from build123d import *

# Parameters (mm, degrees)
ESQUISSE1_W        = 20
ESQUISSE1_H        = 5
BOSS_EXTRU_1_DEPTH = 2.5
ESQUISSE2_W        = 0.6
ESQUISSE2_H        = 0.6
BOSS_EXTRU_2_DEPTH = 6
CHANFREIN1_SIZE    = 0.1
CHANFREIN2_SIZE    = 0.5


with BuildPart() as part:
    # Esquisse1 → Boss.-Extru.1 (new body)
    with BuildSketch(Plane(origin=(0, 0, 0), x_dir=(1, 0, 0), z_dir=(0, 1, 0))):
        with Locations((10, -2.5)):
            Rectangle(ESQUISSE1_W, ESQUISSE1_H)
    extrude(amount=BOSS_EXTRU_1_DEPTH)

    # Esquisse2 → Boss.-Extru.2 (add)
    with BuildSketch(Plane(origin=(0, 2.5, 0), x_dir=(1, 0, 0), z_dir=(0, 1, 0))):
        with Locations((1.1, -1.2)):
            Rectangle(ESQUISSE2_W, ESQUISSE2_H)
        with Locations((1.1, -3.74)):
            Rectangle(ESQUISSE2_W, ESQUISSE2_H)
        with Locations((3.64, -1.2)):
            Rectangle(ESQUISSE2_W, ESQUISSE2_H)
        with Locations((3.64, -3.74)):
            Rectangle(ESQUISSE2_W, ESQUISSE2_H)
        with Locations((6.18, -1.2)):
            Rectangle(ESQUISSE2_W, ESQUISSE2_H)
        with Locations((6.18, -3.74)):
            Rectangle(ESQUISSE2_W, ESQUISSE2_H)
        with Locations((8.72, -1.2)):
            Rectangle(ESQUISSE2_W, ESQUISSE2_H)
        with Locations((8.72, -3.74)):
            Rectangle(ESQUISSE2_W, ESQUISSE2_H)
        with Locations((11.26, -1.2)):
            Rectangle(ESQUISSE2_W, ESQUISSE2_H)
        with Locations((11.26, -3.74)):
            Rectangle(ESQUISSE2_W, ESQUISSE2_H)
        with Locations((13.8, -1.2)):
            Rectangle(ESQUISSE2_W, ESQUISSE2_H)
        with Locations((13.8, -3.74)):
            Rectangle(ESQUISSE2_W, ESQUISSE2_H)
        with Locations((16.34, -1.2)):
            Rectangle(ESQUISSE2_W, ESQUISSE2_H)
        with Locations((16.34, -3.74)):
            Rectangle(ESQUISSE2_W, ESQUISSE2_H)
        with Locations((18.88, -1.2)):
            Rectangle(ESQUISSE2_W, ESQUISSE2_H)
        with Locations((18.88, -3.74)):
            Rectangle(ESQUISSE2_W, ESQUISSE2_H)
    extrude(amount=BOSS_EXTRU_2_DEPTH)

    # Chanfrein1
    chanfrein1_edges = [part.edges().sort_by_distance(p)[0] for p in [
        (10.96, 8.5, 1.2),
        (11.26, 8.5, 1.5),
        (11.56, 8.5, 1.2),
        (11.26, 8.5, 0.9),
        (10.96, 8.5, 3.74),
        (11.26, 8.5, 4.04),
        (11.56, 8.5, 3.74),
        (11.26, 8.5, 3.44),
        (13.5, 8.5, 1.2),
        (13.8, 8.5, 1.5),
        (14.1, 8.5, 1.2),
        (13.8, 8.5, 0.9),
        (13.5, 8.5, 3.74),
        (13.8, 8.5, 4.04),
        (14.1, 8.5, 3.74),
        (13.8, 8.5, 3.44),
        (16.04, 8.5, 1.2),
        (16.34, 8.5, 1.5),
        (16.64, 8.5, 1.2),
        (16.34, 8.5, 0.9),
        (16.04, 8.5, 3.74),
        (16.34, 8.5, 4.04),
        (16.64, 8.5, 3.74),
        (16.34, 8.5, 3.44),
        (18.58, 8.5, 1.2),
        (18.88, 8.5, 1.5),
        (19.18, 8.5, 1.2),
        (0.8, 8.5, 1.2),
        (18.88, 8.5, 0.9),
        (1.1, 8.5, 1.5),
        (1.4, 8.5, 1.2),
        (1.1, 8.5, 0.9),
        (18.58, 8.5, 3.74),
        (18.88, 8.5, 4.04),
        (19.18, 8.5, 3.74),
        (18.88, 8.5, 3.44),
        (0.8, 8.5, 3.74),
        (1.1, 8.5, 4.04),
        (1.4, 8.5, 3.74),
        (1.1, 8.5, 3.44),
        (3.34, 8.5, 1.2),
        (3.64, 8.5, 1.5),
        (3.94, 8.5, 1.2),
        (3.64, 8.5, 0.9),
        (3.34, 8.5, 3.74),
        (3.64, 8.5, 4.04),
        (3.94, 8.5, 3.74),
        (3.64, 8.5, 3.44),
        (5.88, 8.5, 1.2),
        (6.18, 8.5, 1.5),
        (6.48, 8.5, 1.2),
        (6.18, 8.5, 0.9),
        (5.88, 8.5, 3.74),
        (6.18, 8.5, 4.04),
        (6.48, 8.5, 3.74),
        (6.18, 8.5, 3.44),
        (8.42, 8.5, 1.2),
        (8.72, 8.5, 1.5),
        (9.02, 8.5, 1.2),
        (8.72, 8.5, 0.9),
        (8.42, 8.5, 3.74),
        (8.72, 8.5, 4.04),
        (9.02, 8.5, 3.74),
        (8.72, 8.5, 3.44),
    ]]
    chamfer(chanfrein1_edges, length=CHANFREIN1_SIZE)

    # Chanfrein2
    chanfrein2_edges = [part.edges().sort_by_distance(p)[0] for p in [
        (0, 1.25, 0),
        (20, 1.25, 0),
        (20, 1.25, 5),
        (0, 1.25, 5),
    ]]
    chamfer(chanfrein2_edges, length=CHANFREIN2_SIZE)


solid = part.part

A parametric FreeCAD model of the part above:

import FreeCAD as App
import Part
import Sketcher
Q = App.Units.Quantity


def edges_at(feature, points):
    """Names of the edges that pass closest to the given points."""
    edges = feature.Shape.Edges
    near = lambda p: min(range(len(edges)), key=lambda i: edges[i].distToShape(Part.Vertex(*p))[0])
    return sorted({f"Edge{near(p) + 1}" for p in points})

doc = App.newDocument("Part")
body = doc.addObject("PartDesign::Body", "Body")

# Sketch on XZ plane
sketch1 = doc.addObject("Sketcher::SketchObject", "Sketch")
body.addObject(sketch1)
sketch1.AttachmentSupport = (doc.XZ_Plane, [""])
sketch1.MapMode = "FlatFace"
sketch1.addGeometry(Part.LineSegment(App.Vector(0, 0, 0), App.Vector(0, 5, 0)), False)
sketch1.addGeometry(Part.LineSegment(App.Vector(0, 5, 0), App.Vector(20, 5, 0)), False)
sketch1.addGeometry(Part.LineSegment(App.Vector(20, 5, 0), App.Vector(20, 0, 0)), False)
sketch1.addGeometry(Part.LineSegment(App.Vector(20, 0, 0), App.Vector(0, 0, 0)), False)
sketch1.addConstraint(Sketcher.Constraint("Coincident", 0, 2, 1, 1))
sketch1.addConstraint(Sketcher.Constraint("Coincident", 1, 2, 2, 1))
sketch1.addConstraint(Sketcher.Constraint("Coincident", 2, 2, 3, 1))
sketch1.addConstraint(Sketcher.Constraint("Coincident", 3, 2, 0, 1))
sketch1.addConstraint(Sketcher.Constraint("Vertical", 0))
sketch1.addConstraint(Sketcher.Constraint("Horizontal", 1))
sketch1.addConstraint(Sketcher.Constraint("Vertical", 2))
sketch1.addConstraint(Sketcher.Constraint("Horizontal", 3))
sketch1.addConstraint(Sketcher.Constraint("Coincident", 3, 2, -1, 1))
sketch1.addConstraint(Sketcher.Constraint("DistanceX", 1, 1, 1, 2, Q("20 mm")))
sketch1.addConstraint(Sketcher.Constraint("DistanceY", 0, 1, 0, 2, Q("5 mm")))
pad1 = doc.addObject("PartDesign::Pad", "Pad")
body.addObject(pad1)
pad1.Profile = sketch1
pad1.Length = 2.5
pad1.Reversed = True

# Sketch on XZ plane
sketch2 = doc.addObject("Sketcher::SketchObject", "Sketch001")
body.addObject(sketch2)
sketch2.AttachmentSupport = (doc.XZ_Plane, [""])
sketch2.MapMode = "FlatFace"
sketch2.AttachmentOffset = App.Placement(App.Vector(0, 0, -2.5), App.Rotation())
sketch2.addGeometry(Part.LineSegment(App.Vector(0.8, 0.9, 0), App.Vector(0.8, 1.5, 0)), False)
sketch2.addGeometry(Part.LineSegment(App.Vector(0.8, 1.5, 0), App.Vector(1.4, 1.5, 0)), False)
sketch2.addGeometry(Part.LineSegment(App.Vector(1.4, 1.5, 0), App.Vector(1.4, 0.9, 0)), False)
sketch2.addGeometry(Part.LineSegment(App.Vector(1.4, 0.9, 0), App.Vector(0.8, 0.9, 0)), False)
sketch2.addGeometry(Part.LineSegment(App.Vector(0.8, 3.4, 0), App.Vector(0.8, 4, 0)), False)
sketch2.addGeometry(Part.LineSegment(App.Vector(0.8, 4, 0), App.Vector(1.4, 4, 0)), False)
sketch2.addGeometry(Part.LineSegment(App.Vector(1.4, 4, 0), App.Vector(1.4, 3.4, 0)), False)
sketch2.addGeometry(Part.LineSegment(App.Vector(1.4, 3.4, 0), App.Vector(0.8, 3.4, 0)), False)
sketch2.addGeometry(Part.LineSegment(App.Vector(3.3, 0.9, 0), App.Vector(3.3, 1.5, 0)), False)
sketch2.addGeometry(Part.LineSegment(App.Vector(3.3, 1.5, 0), App.Vector(3.9, 1.5, 0)), False)
sketch2.addGeometry(Part.LineSegment(App.Vector(3.9, 1.5, 0), App.Vector(3.9, 0.9, 0)), False)
sketch2.addGeometry(Part.LineSegment(App.Vector(3.9, 0.9, 0), App.Vector(3.3, 0.9, 0)), False)
sketch2.addGeometry(Part.LineSegment(App.Vector(3.3, 3.4, 0), App.Vector(3.3, 4, 0)), False)
sketch2.addGeometry(Part.LineSegment(App.Vector(3.3, 4, 0), App.Vector(3.9, 4, 0)), False)
sketch2.addGeometry(Part.LineSegment(App.Vector(3.9, 4, 0), App.Vector(3.9, 3.4, 0)), False)
sketch2.addGeometry(Part.LineSegment(App.Vector(3.9, 3.4, 0), App.Vector(3.3, 3.4, 0)), False)
sketch2.addGeometry(Part.LineSegment(App.Vector(5.9, 0.9, 0), App.Vector(5.9, 1.5, 0)), False)
sketch2.addGeometry(Part.LineSegment(App.Vector(5.9, 1.5, 0), App.Vector(6.5, 1.5, 0)), False)
sketch2.addGeometry(Part.LineSegment(App.Vector(6.5, 1.5, 0), App.Vector(6.5, 0.9, 0)), False)
sketch2.addGeometry(Part.LineSegment(App.Vector(6.5, 0.9, 0), App.Vector(5.9, 0.9, 0)), False)
sketch2.addGeometry(Part.LineSegment(App.Vector(5.9, 3.4, 0), App.Vector(5.9, 4, 0)), False)
sketch2.addGeometry(Part.LineSegment(App.Vector(5.9, 4, 0), App.Vector(6.5, 4, 0)), False)
sketch2.addGeometry(Part.LineSegment(App.Vector(6.5, 4, 0), App.Vector(6.5, 3.4, 0)), False)
sketch2.addGeometry(Part.LineSegment(App.Vector(6.5, 3.4, 0), App.Vector(5.9, 3.4, 0)), False)
sketch2.addGeometry(Part.LineSegment(App.Vector(8.4, 0.9, 0), App.Vector(8.4, 1.5, 0)), False)
sketch2.addGeometry(Part.LineSegment(App.Vector(8.4, 1.5, 0), App.Vector(9, 1.5, 0)), False)
sketch2.addGeometry(Part.LineSegment(App.Vector(9, 1.5, 0), App.Vector(9, 0.9, 0)), False)
sketch2.addGeometry(Part.LineSegment(App.Vector(9, 0.9, 0), App.Vector(8.4, 0.9, 0)), False)
sketch2.addGeometry(Part.LineSegment(App.Vector(8.4, 3.4, 0), App.Vector(8.4, 4, 0)), False)
sketch2.addGeometry(Part.LineSegment(App.Vector(8.4, 4, 0), App.Vector(9, 4, 0)), False)
sketch2.addGeometry(Part.LineSegment(App.Vector(9, 4, 0), App.Vector(9, 3.4, 0)), False)
sketch2.addGeometry(Part.LineSegment(App.Vector(9, 3.4, 0), App.Vector(8.4, 3.4, 0)), False)
sketch2.addGeometry(Part.LineSegment(App.Vector(11, 0.9, 0), App.Vector(11, 1.5, 0)), False)
sketch2.addGeometry(Part.LineSegment(App.Vector(11, 1.5, 0), App.Vector(11.6, 1.5, 0)), False)
sketch2.addGeometry(Part.LineSegment(App.Vector(11.6, 1.5, 0), App.Vector(11.6, 0.9, 0)), False)
sketch2.addGeometry(Part.LineSegment(App.Vector(11.6, 0.9, 0), App.Vector(11, 0.9, 0)), False)
sketch2.addGeometry(Part.LineSegment(App.Vector(11, 3.4, 0), App.Vector(11, 4, 0)), False)
sketch2.addGeometry(Part.LineSegment(App.Vector(11, 4, 0), App.Vector(11.6, 4, 0)), False)
sketch2.addGeometry(Part.LineSegment(App.Vector(11.6, 4, 0), App.Vector(11.6, 3.4, 0)), False)
sketch2.addGeometry(Part.LineSegment(App.Vector(11.6, 3.4, 0), App.Vector(11, 3.4, 0)), False)
sketch2.addGeometry(Part.LineSegment(App.Vector(13.5, 0.9, 0), App.Vector(13.5, 1.5, 0)), False)
sketch2.addGeometry(Part.LineSegment(App.Vector(13.5, 1.5, 0), App.Vector(14.1, 1.5, 0)), False)
sketch2.addGeometry(Part.LineSegment(App.Vector(14.1, 1.5, 0), App.Vector(14.1, 0.9, 0)), False)
sketch2.addGeometry(Part.LineSegment(App.Vector(14.1, 0.9, 0), App.Vector(13.5, 0.9, 0)), False)
sketch2.addGeometry(Part.LineSegment(App.Vector(13.5, 3.4, 0), App.Vector(13.5, 4, 0)), False)
sketch2.addGeometry(Part.LineSegment(App.Vector(13.5, 4, 0), App.Vector(14.1, 4, 0)), False)
sketch2.addGeometry(Part.LineSegment(App.Vector(14.1, 4, 0), App.Vector(14.1, 3.4, 0)), False)
sketch2.addGeometry(Part.LineSegment(App.Vector(14.1, 3.4, 0), App.Vector(13.5, 3.4, 0)), False)
sketch2.addGeometry(Part.LineSegment(App.Vector(16, 0.9, 0), App.Vector(16, 1.5, 0)), False)
sketch2.addGeometry(Part.LineSegment(App.Vector(16, 1.5, 0), App.Vector(16.6, 1.5, 0)), False)
sketch2.addGeometry(Part.LineSegment(App.Vector(16.6, 1.5, 0), App.Vector(16.6, 0.9, 0)), False)
sketch2.addGeometry(Part.LineSegment(App.Vector(16.6, 0.9, 0), App.Vector(16, 0.9, 0)), False)
sketch2.addGeometry(Part.LineSegment(App.Vector(16, 3.4, 0), App.Vector(16, 4, 0)), False)
sketch2.addGeometry(Part.LineSegment(App.Vector(16, 4, 0), App.Vector(16.6, 4, 0)), False)
sketch2.addGeometry(Part.LineSegment(App.Vector(16.6, 4, 0), App.Vector(16.6, 3.4, 0)), False)
sketch2.addGeometry(Part.LineSegment(App.Vector(16.6, 3.4, 0), App.Vector(16, 3.4, 0)), False)
sketch2.addGeometry(Part.LineSegment(App.Vector(18.6, 0.9, 0), App.Vector(18.6, 1.5, 0)), False)
sketch2.addGeometry(Part.LineSegment(App.Vector(18.6, 1.5, 0), App.Vector(19.2, 1.5, 0)), False)
sketch2.addGeometry(Part.LineSegment(App.Vector(19.2, 1.5, 0), App.Vector(19.2, 0.9, 0)), False)
sketch2.addGeometry(Part.LineSegment(App.Vector(19.2, 0.9, 0), App.Vector(18.6, 0.9, 0)), False)
sketch2.addGeometry(Part.LineSegment(App.Vector(18.6, 3.4, 0), App.Vector(18.6, 4, 0)), False)
sketch2.addGeometry(Part.LineSegment(App.Vector(18.6, 4, 0), App.Vector(19.2, 4, 0)), False)
sketch2.addGeometry(Part.LineSegment(App.Vector(19.2, 4, 0), App.Vector(19.2, 3.4, 0)), False)
sketch2.addGeometry(Part.LineSegment(App.Vector(19.2, 3.4, 0), App.Vector(18.6, 3.4, 0)), False)
sketch2.addConstraint(Sketcher.Constraint("Coincident", 0, 2, 1, 1))
sketch2.addConstraint(Sketcher.Constraint("Coincident", 1, 2, 2, 1))
sketch2.addConstraint(Sketcher.Constraint("Coincident", 2, 2, 3, 1))
sketch2.addConstraint(Sketcher.Constraint("Coincident", 3, 2, 0, 1))
sketch2.addConstraint(Sketcher.Constraint("Coincident", 4, 2, 5, 1))
sketch2.addConstraint(Sketcher.Constraint("Coincident", 5, 2, 6, 1))
sketch2.addConstraint(Sketcher.Constraint("Coincident", 6, 2, 7, 1))
sketch2.addConstraint(Sketcher.Constraint("Coincident", 7, 2, 4, 1))
sketch2.addConstraint(Sketcher.Constraint("Coincident", 8, 2, 9, 1))
sketch2.addConstraint(Sketcher.Constraint("Coincident", 9, 2, 10, 1))
sketch2.addConstraint(Sketcher.Constraint("Coincident", 10, 2, 11, 1))
sketch2.addConstraint(Sketcher.Constraint("Coincident", 11, 2, 8, 1))
sketch2.addConstraint(Sketcher.Constraint("Coincident", 12, 2, 13, 1))
sketch2.addConstraint(Sketcher.Constraint("Coincident", 13, 2, 14, 1))
sketch2.addConstraint(Sketcher.Constraint("Coincident", 14, 2, 15, 1))
sketch2.addConstraint(Sketcher.Constraint("Coincident", 15, 2, 12, 1))
sketch2.addConstraint(Sketcher.Constraint("Coincident", 16, 2, 17, 1))
sketch2.addConstraint(Sketcher.Constraint("Coincident", 17, 2, 18, 1))
sketch2.addConstraint(Sketcher.Constraint("Coincident", 18, 2, 19, 1))
sketch2.addConstraint(Sketcher.Constraint("Coincident", 19, 2, 16, 1))
sketch2.addConstraint(Sketcher.Constraint("Coincident", 20, 2, 21, 1))
sketch2.addConstraint(Sketcher.Constraint("Coincident", 21, 2, 22, 1))
sketch2.addConstraint(Sketcher.Constraint("Coincident", 22, 2, 23, 1))
sketch2.addConstraint(Sketcher.Constraint("Coincident", 23, 2, 20, 1))
sketch2.addConstraint(Sketcher.Constraint("Coincident", 24, 2, 25, 1))
sketch2.addConstraint(Sketcher.Constraint("Coincident", 25, 2, 26, 1))
sketch2.addConstraint(Sketcher.Constraint("Coincident", 26, 2, 27, 1))
sketch2.addConstraint(Sketcher.Constraint("Coincident", 27, 2, 24, 1))
sketch2.addConstraint(Sketcher.Constraint("Coincident", 28, 2, 29, 1))
sketch2.addConstraint(Sketcher.Constraint("Coincident", 29, 2, 30, 1))
sketch2.addConstraint(Sketcher.Constraint("Coincident", 30, 2, 31, 1))
sketch2.addConstraint(Sketcher.Constraint("Coincident", 31, 2, 28, 1))
sketch2.addConstraint(Sketcher.Constraint("Coincident", 32, 2, 33, 1))
sketch2.addConstraint(Sketcher.Constraint("Coincident", 33, 2, 34, 1))
sketch2.addConstraint(Sketcher.Constraint("Coincident", 34, 2, 35, 1))
sketch2.addConstraint(Sketcher.Constraint("Coincident", 35, 2, 32, 1))
sketch2.addConstraint(Sketcher.Constraint("Coincident", 36, 2, 37, 1))
sketch2.addConstraint(Sketcher.Constraint("Coincident", 37, 2, 38, 1))
sketch2.addConstraint(Sketcher.Constraint("Coincident", 38, 2, 39, 1))
sketch2.addConstraint(Sketcher.Constraint("Coincident", 39, 2, 36, 1))
sketch2.addConstraint(Sketcher.Constraint("Coincident", 40, 2, 41, 1))
sketch2.addConstraint(Sketcher.Constraint("Coincident", 41, 2, 42, 1))
sketch2.addConstraint(Sketcher.Constraint("Coincident", 42, 2, 43, 1))
sketch2.addConstraint(Sketcher.Constraint("Coincident", 43, 2, 40, 1))
sketch2.addConstraint(Sketcher.Constraint("Coincident", 44, 2, 45, 1))
sketch2.addConstraint(Sketcher.Constraint("Coincident", 45, 2, 46, 1))
sketch2.addConstraint(Sketcher.Constraint("Coincident", 46, 2, 47, 1))
sketch2.addConstraint(Sketcher.Constraint("Coincident", 47, 2, 44, 1))
sketch2.addConstraint(Sketcher.Constraint("Coincident", 48, 2, 49, 1))
sketch2.addConstraint(Sketcher.Constraint("Coincident", 49, 2, 50, 1))
sketch2.addConstraint(Sketcher.Constraint("Coincident", 50, 2, 51, 1))
sketch2.addConstraint(Sketcher.Constraint("Coincident", 51, 2, 48, 1))
sketch2.addConstraint(Sketcher.Constraint("Coincident", 52, 2, 53, 1))
sketch2.addConstraint(Sketcher.Constraint("Coincident", 53, 2, 54, 1))
sketch2.addConstraint(Sketcher.Constraint("Coincident", 54, 2, 55, 1))
sketch2.addConstraint(Sketcher.Constraint("Coincident", 55, 2, 52, 1))
sketch2.addConstraint(Sketcher.Constraint("Coincident", 56, 2, 57, 1))
sketch2.addConstraint(Sketcher.Constraint("Coincident", 57, 2, 58, 1))
sketch2.addConstraint(Sketcher.Constraint("Coincident", 58, 2, 59, 1))
sketch2.addConstraint(Sketcher.Constraint("Coincident", 59, 2, 56, 1))
sketch2.addConstraint(Sketcher.Constraint("Coincident", 60, 2, 61, 1))
sketch2.addConstraint(Sketcher.Constraint("Coincident", 61, 2, 62, 1))
sketch2.addConstraint(Sketcher.Constraint("Coincident", 62, 2, 63, 1))
sketch2.addConstraint(Sketcher.Constraint("Coincident", 63, 2, 60, 1))
sketch2.addConstraint(Sketcher.Constraint("Vertical", 0))
sketch2.addConstraint(Sketcher.Constraint("Horizontal", 1))
sketch2.addConstraint(Sketcher.Constraint("Vertical", 2))
sketch2.addConstraint(Sketcher.Constraint("Horizontal", 3))
sketch2.addConstraint(Sketcher.Constraint("Vertical", 4))
sketch2.addConstraint(Sketcher.Constraint("Horizontal", 5))
sketch2.addConstraint(Sketcher.Constraint("Vertical", 6))
sketch2.addConstraint(Sketcher.Constraint("Horizontal", 7))
sketch2.addConstraint(Sketcher.Constraint("Vertical", 8))
sketch2.addConstraint(Sketcher.Constraint("Horizontal", 9))
sketch2.addConstraint(Sketcher.Constraint("Vertical", 10))
sketch2.addConstraint(Sketcher.Constraint("Horizontal", 11))
sketch2.addConstraint(Sketcher.Constraint("Vertical", 12))
sketch2.addConstraint(Sketcher.Constraint("Horizontal", 13))
sketch2.addConstraint(Sketcher.Constraint("Vertical", 14))
sketch2.addConstraint(Sketcher.Constraint("Horizontal", 15))
sketch2.addConstraint(Sketcher.Constraint("Vertical", 16))
sketch2.addConstraint(Sketcher.Constraint("Horizontal", 17))
sketch2.addConstraint(Sketcher.Constraint("Vertical", 18))
sketch2.addConstraint(Sketcher.Constraint("Horizontal", 19))
sketch2.addConstraint(Sketcher.Constraint("Vertical", 20))
sketch2.addConstraint(Sketcher.Constraint("Horizontal", 21))
sketch2.addConstraint(Sketcher.Constraint("Vertical", 22))
sketch2.addConstraint(Sketcher.Constraint("Horizontal", 23))
sketch2.addConstraint(Sketcher.Constraint("Vertical", 24))
sketch2.addConstraint(Sketcher.Constraint("Horizontal", 25))
sketch2.addConstraint(Sketcher.Constraint("Vertical", 26))
sketch2.addConstraint(Sketcher.Constraint("Horizontal", 27))
sketch2.addConstraint(Sketcher.Constraint("Vertical", 28))
sketch2.addConstraint(Sketcher.Constraint("Horizontal", 29))
sketch2.addConstraint(Sketcher.Constraint("Vertical", 30))
sketch2.addConstraint(Sketcher.Constraint("Horizontal", 31))
sketch2.addConstraint(Sketcher.Constraint("Vertical", 32))
sketch2.addConstraint(Sketcher.Constraint("Horizontal", 33))
sketch2.addConstraint(Sketcher.Constraint("Vertical", 34))
sketch2.addConstraint(Sketcher.Constraint("Horizontal", 35))
sketch2.addConstraint(Sketcher.Constraint("Vertical", 36))
sketch2.addConstraint(Sketcher.Constraint("Horizontal", 37))
sketch2.addConstraint(Sketcher.Constraint("Vertical", 38))
sketch2.addConstraint(Sketcher.Constraint("Horizontal", 39))
sketch2.addConstraint(Sketcher.Constraint("Vertical", 40))
sketch2.addConstraint(Sketcher.Constraint("Horizontal", 41))
sketch2.addConstraint(Sketcher.Constraint("Vertical", 42))
sketch2.addConstraint(Sketcher.Constraint("Horizontal", 43))
sketch2.addConstraint(Sketcher.Constraint("Vertical", 44))
sketch2.addConstraint(Sketcher.Constraint("Horizontal", 45))
sketch2.addConstraint(Sketcher.Constraint("Vertical", 46))
sketch2.addConstraint(Sketcher.Constraint("Horizontal", 47))
sketch2.addConstraint(Sketcher.Constraint("Vertical", 48))
sketch2.addConstraint(Sketcher.Constraint("Horizontal", 49))
sketch2.addConstraint(Sketcher.Constraint("Vertical", 50))
sketch2.addConstraint(Sketcher.Constraint("Horizontal", 51))
sketch2.addConstraint(Sketcher.Constraint("Vertical", 52))
sketch2.addConstraint(Sketcher.Constraint("Horizontal", 53))
sketch2.addConstraint(Sketcher.Constraint("Vertical", 54))
sketch2.addConstraint(Sketcher.Constraint("Horizontal", 55))
sketch2.addConstraint(Sketcher.Constraint("Vertical", 56))
sketch2.addConstraint(Sketcher.Constraint("Horizontal", 57))
sketch2.addConstraint(Sketcher.Constraint("Vertical", 58))
sketch2.addConstraint(Sketcher.Constraint("Horizontal", 59))
sketch2.addConstraint(Sketcher.Constraint("Vertical", 60))
sketch2.addConstraint(Sketcher.Constraint("Horizontal", 61))
sketch2.addConstraint(Sketcher.Constraint("Vertical", 62))
sketch2.addConstraint(Sketcher.Constraint("Horizontal", 63))
sketch2.addConstraint(Sketcher.Constraint("Horizontal", 1, 2, 8, 2))
sketch2.addConstraint(Sketcher.Constraint("Horizontal", 3, 2, 10, 2))
sketch2.addConstraint(Sketcher.Constraint("Horizontal", 5, 2, 12, 2))
sketch2.addConstraint(Sketcher.Constraint("Horizontal", 7, 2, 14, 2))
sketch2.addConstraint(Sketcher.Constraint("Horizontal", 9, 2, 16, 2))
sketch2.addConstraint(Sketcher.Constraint("Horizontal", 11, 2, 18, 2))
sketch2.addConstraint(Sketcher.Constraint("Horizontal", 13, 2, 20, 2))
sketch2.addConstraint(Sketcher.Constraint("Horizontal", 15, 2, 22, 2))
sketch2.addConstraint(Sketcher.Constraint("Horizontal", 17, 2, 24, 2))
sketch2.addConstraint(Sketcher.Constraint("Horizontal", 19, 2, 26, 2))
sketch2.addConstraint(Sketcher.Constraint("Horizontal", 21, 2, 28, 2))
sketch2.addConstraint(Sketcher.Constraint("Horizontal", 23, 2, 30, 2))
sketch2.addConstraint(Sketcher.Constraint("Horizontal", 25, 2, 32, 2))
sketch2.addConstraint(Sketcher.Constraint("Horizontal", 27, 2, 34, 2))
sketch2.addConstraint(Sketcher.Constraint("Horizontal", 29, 2, 36, 2))
sketch2.addConstraint(Sketcher.Constraint("Horizontal", 31, 2, 38, 2))
sketch2.addConstraint(Sketcher.Constraint("Horizontal", 33, 2, 40, 2))
sketch2.addConstraint(Sketcher.Constraint("Horizontal", 35, 2, 42, 2))
sketch2.addConstraint(Sketcher.Constraint("Horizontal", 37, 2, 44, 2))
sketch2.addConstraint(Sketcher.Constraint("Horizontal", 39, 2, 46, 2))
sketch2.addConstraint(Sketcher.Constraint("Horizontal", 41, 2, 48, 2))
sketch2.addConstraint(Sketcher.Constraint("Horizontal", 43, 2, 50, 2))
sketch2.addConstraint(Sketcher.Constraint("Horizontal", 45, 2, 52, 2))
sketch2.addConstraint(Sketcher.Constraint("Horizontal", 47, 2, 54, 2))
sketch2.addConstraint(Sketcher.Constraint("Horizontal", 49, 2, 56, 2))
sketch2.addConstraint(Sketcher.Constraint("Horizontal", 51, 2, 58, 2))
sketch2.addConstraint(Sketcher.Constraint("Horizontal", 53, 2, 60, 2))
sketch2.addConstraint(Sketcher.Constraint("Horizontal", 55, 2, 62, 2))
sketch2.addConstraint(Sketcher.Constraint("Vertical", 3, 2, 4, 2))
sketch2.addConstraint(Sketcher.Constraint("Vertical", 2, 2, 5, 2))
sketch2.addConstraint(Sketcher.Constraint("Vertical", 11, 2, 12, 2))
sketch2.addConstraint(Sketcher.Constraint("Vertical", 10, 2, 13, 2))
sketch2.addConstraint(Sketcher.Constraint("Vertical", 19, 2, 20, 2))
sketch2.addConstraint(Sketcher.Constraint("Vertical", 18, 2, 21, 2))
sketch2.addConstraint(Sketcher.Constraint("Vertical", 27, 2, 28, 2))
sketch2.addConstraint(Sketcher.Constraint("Vertical", 26, 2, 29, 2))
sketch2.addConstraint(Sketcher.Constraint("Vertical", 35, 2, 36, 2))
sketch2.addConstraint(Sketcher.Constraint("Vertical", 34, 2, 37, 2))
sketch2.addConstraint(Sketcher.Constraint("Vertical", 43, 2, 44, 2))
sketch2.addConstraint(Sketcher.Constraint("Vertical", 42, 2, 45, 2))
sketch2.addConstraint(Sketcher.Constraint("Vertical", 51, 2, 52, 2))
sketch2.addConstraint(Sketcher.Constraint("Vertical", 50, 2, 53, 2))
sketch2.addConstraint(Sketcher.Constraint("Vertical", 59, 2, 60, 2))
sketch2.addConstraint(Sketcher.Constraint("Vertical", 58, 2, 61, 2))
sketch2.addConstraint(Sketcher.Constraint("Equal", 7, 9))
sketch2.addConstraint(Sketcher.Constraint("Equal", 15, 17))
sketch2.addConstraint(Sketcher.Constraint("Equal", 23, 25))
sketch2.addConstraint(Sketcher.Constraint("Equal", 31, 33))
sketch2.addConstraint(Sketcher.Constraint("Equal", 39, 41))
sketch2.addConstraint(Sketcher.Constraint("Equal", 47, 49))
sketch2.addConstraint(Sketcher.Constraint("Equal", 55, 57))
sketch2.addConstraint(Sketcher.Constraint("Equal", 63, 0))
sketch2.addConstraint(Sketcher.Constraint("Equal", 2, 4))
sketch2.addConstraint(Sketcher.Constraint("DistanceX", 1, 1, 1, 2, Q("0.6 mm")))
sketch2.addConstraint(Sketcher.Constraint("DistanceX", -1, 1, 0, 2, Q("0.8 mm")))
sketch2.addConstraint(Sketcher.Constraint("DistanceY", -1, 1, 0, 2, Q("1.5 mm")))
sketch2.addConstraint(Sketcher.Constraint("DistanceX", -1, 1, 40, 2, Q("13.5 mm")))
sketch2.addConstraint(Sketcher.Constraint("DistanceY", -1, 1, 4, 2, Q("4.04 mm")))
sketch2.addConstraint(Sketcher.Constraint("DistanceX", -1, 1, 8, 2, Q("3.34 mm")))
sketch2.addConstraint(Sketcher.Constraint("DistanceX", -1, 1, 16, 2, Q("5.88 mm")))
sketch2.addConstraint(Sketcher.Constraint("DistanceX", -1, 1, 24, 2, Q("8.42 mm")))
sketch2.addConstraint(Sketcher.Constraint("DistanceX", -1, 1, 32, 2, Q("10.96 mm")))
sketch2.addConstraint(Sketcher.Constraint("DistanceX", -1, 1, 48, 2, Q("16.04 mm")))
sketch2.addConstraint(Sketcher.Constraint("DistanceX", -1, 1, 56, 2, Q("18.58 mm")))
pad2 = doc.addObject("PartDesign::Pad", "Pad001")
body.addObject(pad2)
pad2.Profile = sketch2
pad2.Length = 6
pad2.Reversed = True
doc.recompute()

chamfer = doc.addObject("PartDesign::Chamfer", "Chamfer")
body.addObject(chamfer)
chamfer.Base = (pad2, edges_at(pad2, [
    (10.96, 8.5, 1.2),
    (11.26, 8.5, 1.5),
    (11.56, 8.5, 1.2),
    (11.26, 8.5, 0.9),
    (10.96, 8.5, 3.74),
    (11.26, 8.5, 4.04),
    (11.56, 8.5, 3.74),
    (11.26, 8.5, 3.44),
    (13.5, 8.5, 1.2),
    (13.8, 8.5, 1.5),
    (14.1, 8.5, 1.2),
    (13.8, 8.5, 0.9),
    (13.5, 8.5, 3.74),
    (13.8, 8.5, 4.04),
    (14.1, 8.5, 3.74),
    (13.8, 8.5, 3.44),
    (16.04, 8.5, 1.2),
    (16.34, 8.5, 1.5),
    (16.64, 8.5, 1.2),
    (16.34, 8.5, 0.9),
    (16.04, 8.5, 3.74),
    (16.34, 8.5, 4.04),
    (16.64, 8.5, 3.74),
    (16.34, 8.5, 3.44),
    (18.58, 8.5, 1.2),
    (18.88, 8.5, 1.5),
    (19.18, 8.5, 1.2),
    (0.8, 8.5, 1.2),
    (18.88, 8.5, 0.9),
    (1.1, 8.5, 1.5),
    (1.4, 8.5, 1.2),
    (1.1, 8.5, 0.9),
    (18.58, 8.5, 3.74),
    (18.88, 8.5, 4.04),
    (19.18, 8.5, 3.74),
    (18.88, 8.5, 3.44),
    (0.8, 8.5, 3.74),
    (1.1, 8.5, 4.04),
    (1.4, 8.5, 3.74),
    (1.1, 8.5, 3.44),
    (3.34, 8.5, 1.2),
    (3.64, 8.5, 1.5),
    (3.94, 8.5, 1.2),
    (3.64, 8.5, 0.9),
    (3.34, 8.5, 3.74),
    (3.64, 8.5, 4.04),
    (3.94, 8.5, 3.74),
    (3.64, 8.5, 3.44),
    (5.88, 8.5, 1.2),
    (6.18, 8.5, 1.5),
    (6.48, 8.5, 1.2),
    (6.18, 8.5, 0.9),
    (5.88, 8.5, 3.74),
    (6.18, 8.5, 4.04),
    (6.48, 8.5, 3.74),
    (6.18, 8.5, 3.44),
    (8.42, 8.5, 1.2),
    (8.72, 8.5, 1.5),
    (9.02, 8.5, 1.2),
    (8.72, 8.5, 0.9),
    (8.42, 8.5, 3.74),
    (8.72, 8.5, 4.04),
    (9.02, 8.5, 3.74),
    (8.72, 8.5, 3.44),
]))
chamfer.Size = 0.1
doc.recompute()

chamfer2 = doc.addObject("PartDesign::Chamfer", "Chamfer001")
body.addObject(chamfer2)
chamfer2.Base = (chamfer, edges_at(chamfer, [
    (0, 1.25, 0),
    (20, 1.25, 0),
    (20, 1.25, 5),
    (0, 1.25, 5),
]))
chamfer2.Size = 0.5

doc.recompute()
